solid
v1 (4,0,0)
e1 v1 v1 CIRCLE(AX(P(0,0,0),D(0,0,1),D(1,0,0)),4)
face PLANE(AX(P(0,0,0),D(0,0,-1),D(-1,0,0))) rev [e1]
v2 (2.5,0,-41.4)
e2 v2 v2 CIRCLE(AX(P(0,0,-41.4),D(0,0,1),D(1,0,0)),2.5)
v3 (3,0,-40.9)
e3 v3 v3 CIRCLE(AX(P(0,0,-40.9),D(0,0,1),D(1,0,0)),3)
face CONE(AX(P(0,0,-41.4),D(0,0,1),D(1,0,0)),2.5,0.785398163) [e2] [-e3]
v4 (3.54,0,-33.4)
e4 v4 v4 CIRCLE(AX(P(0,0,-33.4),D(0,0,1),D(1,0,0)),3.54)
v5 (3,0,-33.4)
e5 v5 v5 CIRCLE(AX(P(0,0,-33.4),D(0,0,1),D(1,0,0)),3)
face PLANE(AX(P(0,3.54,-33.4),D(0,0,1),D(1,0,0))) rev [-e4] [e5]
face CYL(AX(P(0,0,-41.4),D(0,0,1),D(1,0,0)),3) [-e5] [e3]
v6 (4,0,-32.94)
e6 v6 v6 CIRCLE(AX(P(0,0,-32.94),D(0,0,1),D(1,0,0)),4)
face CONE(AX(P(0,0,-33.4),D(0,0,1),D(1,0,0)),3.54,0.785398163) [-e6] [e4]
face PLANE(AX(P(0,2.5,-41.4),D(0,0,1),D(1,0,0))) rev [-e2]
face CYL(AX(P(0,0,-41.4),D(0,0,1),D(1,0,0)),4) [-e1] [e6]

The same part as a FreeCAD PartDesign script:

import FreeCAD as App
import Part
import Sketcher

V = App.Vector
Q = App.Units.Quantity

doc = App.newDocument("Part")
body = doc.addObject("PartDesign::Body", "Body")

# Sketch on YZ plane
sketch1 = body.newObject("Sketcher::SketchObject", "Sketch")
sketch1.AttachmentSupport = (doc.getObject("YZ_Plane"), [""])
sketch1.MapMode = "FlatFace"
sketch1.addGeometry([
    Part.LineSegment(V(4, 0, 0), V(0, 0, 0)),  # 0
    Part.LineSegment(V(0, 0, 0), V(0, -41.4, 0)),  # 1
    Part.LineSegment(V(0, -41.4, 0), V(2.5, -41.4, 0)),  # 2
    Part.LineSegment(V(2.5, -41.4, 0), V(3, -40.9, 0)),  # 3
    Part.LineSegment(V(3, -40.9, 0), V(3, -33.4, 0)),  # 4
    Part.LineSegment(V(3, -33.4, 0), V(3.5, -33.4, 0)),  # 5
    Part.LineSegment(V(3.5, -33.4, 0), V(4, -32.9, 0)),  # 6
    Part.LineSegment(V(4, -32.9, 0), V(4, 0, 0)),  # 7
], False)
sketch1.addConstraint([
    Sketcher.Constraint("Coincident", 0, 2, 1, 1),
    Sketcher.Constraint("Coincident", 1, 2, 2, 1),
    Sketcher.Constraint("Coincident", 2, 2, 3, 1),
    Sketcher.Constraint("Coincident", 3, 2, 4, 1),
    Sketcher.Constraint("Coincident", 4, 2, 5, 1),
    Sketcher.Constraint("Coincident", 5, 2, 6, 1),
    Sketcher.Constraint("Coincident", 6, 2, 7, 1),
    Sketcher.Constraint("Coincident", 7, 2, 0, 1),
    Sketcher.Constraint("Horizontal", 0),
    Sketcher.Constraint("Vertical", 1),
    Sketcher.Constraint("Horizontal", 2),
    Sketcher.Constraint("Vertical", 4),
    Sketcher.Constraint("Horizontal", 5),
    Sketcher.Constraint("Vertical", 7),
    Sketcher.Constraint("Coincident", 0, 2, -1, 1),
    Sketcher.Constraint("Parallel", 3, 6),
    Sketcher.Constraint("DistanceX", 0, 2, 0, 1, Q("4 mm")),
    Sketcher.Constraint("Angle", 3, Q("45 deg")),
    Sketcher.Constraint("DistanceX", 2, 1, 2, 2, Q("2.5 mm")),
    Sketcher.Constraint("DistanceY", 1, 2, 1, 1, Q("41.4 mm")),
    Sketcher.Constraint("DistanceY", 4, 1, 4, 2, Q("7.5 mm")),
    Sketcher.Constraint("DistanceX", -1, 1, 3, 2, Q("3 mm")),
    Sketcher.Constraint("DistanceX", 5, 1, 5, 2, Q("0.54 mm")),
])
revolution = body.newObject("PartDesign::Revolution", "Revolution")
revolution.Profile = sketch1
revolution.ReferenceAxis = (sketch1, ["V_Axis"])
revolution.Angle = 360

doc.recompute()
